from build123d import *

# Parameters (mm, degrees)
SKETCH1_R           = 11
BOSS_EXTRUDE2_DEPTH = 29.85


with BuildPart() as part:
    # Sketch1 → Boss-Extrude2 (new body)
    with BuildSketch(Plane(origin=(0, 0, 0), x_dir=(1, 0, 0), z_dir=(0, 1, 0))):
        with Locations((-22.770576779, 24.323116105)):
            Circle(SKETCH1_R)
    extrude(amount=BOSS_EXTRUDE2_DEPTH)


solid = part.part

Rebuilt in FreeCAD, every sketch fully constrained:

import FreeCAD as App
import Part
import Sketcher
from FreeCAD import Vector
Q = App.Units.Quantity

doc = App.newDocument("Part")
body = doc.addObject("PartDesign::Body", "Body")

# Sketch on XZ plane
sketch1 = doc.addObject("Sketcher::SketchObject", "Sketch")
body.addObject(sketch1)
sketch1.AttachmentSupport = (doc.XZ_Plane, [""])
sketch1.MapMode = "FlatFace"
sketch1.addGeometry(Part.Circle(Vector(-22.770577, -24.323116, 0), Vector(0, 0, 1), 11), False)
sketch1.addConstraint([
    Sketcher.Constraint("Diameter", 0, Q("22 mm")),
    Sketcher.Constraint("DistanceX", 0, 3, -1, 1, Q("22.770577 mm")),
    Sketcher.Constraint("DistanceY", 0, 3, -1, 1, Q("24.323116 mm")),
])
pad1 = doc.addObject("PartDesign::Pad", "Pad")
body.addObject(pad1)
pad1.Profile = sketch1
pad1.Length = 29.85
pad1.Reversed = True

doc.recompute()
